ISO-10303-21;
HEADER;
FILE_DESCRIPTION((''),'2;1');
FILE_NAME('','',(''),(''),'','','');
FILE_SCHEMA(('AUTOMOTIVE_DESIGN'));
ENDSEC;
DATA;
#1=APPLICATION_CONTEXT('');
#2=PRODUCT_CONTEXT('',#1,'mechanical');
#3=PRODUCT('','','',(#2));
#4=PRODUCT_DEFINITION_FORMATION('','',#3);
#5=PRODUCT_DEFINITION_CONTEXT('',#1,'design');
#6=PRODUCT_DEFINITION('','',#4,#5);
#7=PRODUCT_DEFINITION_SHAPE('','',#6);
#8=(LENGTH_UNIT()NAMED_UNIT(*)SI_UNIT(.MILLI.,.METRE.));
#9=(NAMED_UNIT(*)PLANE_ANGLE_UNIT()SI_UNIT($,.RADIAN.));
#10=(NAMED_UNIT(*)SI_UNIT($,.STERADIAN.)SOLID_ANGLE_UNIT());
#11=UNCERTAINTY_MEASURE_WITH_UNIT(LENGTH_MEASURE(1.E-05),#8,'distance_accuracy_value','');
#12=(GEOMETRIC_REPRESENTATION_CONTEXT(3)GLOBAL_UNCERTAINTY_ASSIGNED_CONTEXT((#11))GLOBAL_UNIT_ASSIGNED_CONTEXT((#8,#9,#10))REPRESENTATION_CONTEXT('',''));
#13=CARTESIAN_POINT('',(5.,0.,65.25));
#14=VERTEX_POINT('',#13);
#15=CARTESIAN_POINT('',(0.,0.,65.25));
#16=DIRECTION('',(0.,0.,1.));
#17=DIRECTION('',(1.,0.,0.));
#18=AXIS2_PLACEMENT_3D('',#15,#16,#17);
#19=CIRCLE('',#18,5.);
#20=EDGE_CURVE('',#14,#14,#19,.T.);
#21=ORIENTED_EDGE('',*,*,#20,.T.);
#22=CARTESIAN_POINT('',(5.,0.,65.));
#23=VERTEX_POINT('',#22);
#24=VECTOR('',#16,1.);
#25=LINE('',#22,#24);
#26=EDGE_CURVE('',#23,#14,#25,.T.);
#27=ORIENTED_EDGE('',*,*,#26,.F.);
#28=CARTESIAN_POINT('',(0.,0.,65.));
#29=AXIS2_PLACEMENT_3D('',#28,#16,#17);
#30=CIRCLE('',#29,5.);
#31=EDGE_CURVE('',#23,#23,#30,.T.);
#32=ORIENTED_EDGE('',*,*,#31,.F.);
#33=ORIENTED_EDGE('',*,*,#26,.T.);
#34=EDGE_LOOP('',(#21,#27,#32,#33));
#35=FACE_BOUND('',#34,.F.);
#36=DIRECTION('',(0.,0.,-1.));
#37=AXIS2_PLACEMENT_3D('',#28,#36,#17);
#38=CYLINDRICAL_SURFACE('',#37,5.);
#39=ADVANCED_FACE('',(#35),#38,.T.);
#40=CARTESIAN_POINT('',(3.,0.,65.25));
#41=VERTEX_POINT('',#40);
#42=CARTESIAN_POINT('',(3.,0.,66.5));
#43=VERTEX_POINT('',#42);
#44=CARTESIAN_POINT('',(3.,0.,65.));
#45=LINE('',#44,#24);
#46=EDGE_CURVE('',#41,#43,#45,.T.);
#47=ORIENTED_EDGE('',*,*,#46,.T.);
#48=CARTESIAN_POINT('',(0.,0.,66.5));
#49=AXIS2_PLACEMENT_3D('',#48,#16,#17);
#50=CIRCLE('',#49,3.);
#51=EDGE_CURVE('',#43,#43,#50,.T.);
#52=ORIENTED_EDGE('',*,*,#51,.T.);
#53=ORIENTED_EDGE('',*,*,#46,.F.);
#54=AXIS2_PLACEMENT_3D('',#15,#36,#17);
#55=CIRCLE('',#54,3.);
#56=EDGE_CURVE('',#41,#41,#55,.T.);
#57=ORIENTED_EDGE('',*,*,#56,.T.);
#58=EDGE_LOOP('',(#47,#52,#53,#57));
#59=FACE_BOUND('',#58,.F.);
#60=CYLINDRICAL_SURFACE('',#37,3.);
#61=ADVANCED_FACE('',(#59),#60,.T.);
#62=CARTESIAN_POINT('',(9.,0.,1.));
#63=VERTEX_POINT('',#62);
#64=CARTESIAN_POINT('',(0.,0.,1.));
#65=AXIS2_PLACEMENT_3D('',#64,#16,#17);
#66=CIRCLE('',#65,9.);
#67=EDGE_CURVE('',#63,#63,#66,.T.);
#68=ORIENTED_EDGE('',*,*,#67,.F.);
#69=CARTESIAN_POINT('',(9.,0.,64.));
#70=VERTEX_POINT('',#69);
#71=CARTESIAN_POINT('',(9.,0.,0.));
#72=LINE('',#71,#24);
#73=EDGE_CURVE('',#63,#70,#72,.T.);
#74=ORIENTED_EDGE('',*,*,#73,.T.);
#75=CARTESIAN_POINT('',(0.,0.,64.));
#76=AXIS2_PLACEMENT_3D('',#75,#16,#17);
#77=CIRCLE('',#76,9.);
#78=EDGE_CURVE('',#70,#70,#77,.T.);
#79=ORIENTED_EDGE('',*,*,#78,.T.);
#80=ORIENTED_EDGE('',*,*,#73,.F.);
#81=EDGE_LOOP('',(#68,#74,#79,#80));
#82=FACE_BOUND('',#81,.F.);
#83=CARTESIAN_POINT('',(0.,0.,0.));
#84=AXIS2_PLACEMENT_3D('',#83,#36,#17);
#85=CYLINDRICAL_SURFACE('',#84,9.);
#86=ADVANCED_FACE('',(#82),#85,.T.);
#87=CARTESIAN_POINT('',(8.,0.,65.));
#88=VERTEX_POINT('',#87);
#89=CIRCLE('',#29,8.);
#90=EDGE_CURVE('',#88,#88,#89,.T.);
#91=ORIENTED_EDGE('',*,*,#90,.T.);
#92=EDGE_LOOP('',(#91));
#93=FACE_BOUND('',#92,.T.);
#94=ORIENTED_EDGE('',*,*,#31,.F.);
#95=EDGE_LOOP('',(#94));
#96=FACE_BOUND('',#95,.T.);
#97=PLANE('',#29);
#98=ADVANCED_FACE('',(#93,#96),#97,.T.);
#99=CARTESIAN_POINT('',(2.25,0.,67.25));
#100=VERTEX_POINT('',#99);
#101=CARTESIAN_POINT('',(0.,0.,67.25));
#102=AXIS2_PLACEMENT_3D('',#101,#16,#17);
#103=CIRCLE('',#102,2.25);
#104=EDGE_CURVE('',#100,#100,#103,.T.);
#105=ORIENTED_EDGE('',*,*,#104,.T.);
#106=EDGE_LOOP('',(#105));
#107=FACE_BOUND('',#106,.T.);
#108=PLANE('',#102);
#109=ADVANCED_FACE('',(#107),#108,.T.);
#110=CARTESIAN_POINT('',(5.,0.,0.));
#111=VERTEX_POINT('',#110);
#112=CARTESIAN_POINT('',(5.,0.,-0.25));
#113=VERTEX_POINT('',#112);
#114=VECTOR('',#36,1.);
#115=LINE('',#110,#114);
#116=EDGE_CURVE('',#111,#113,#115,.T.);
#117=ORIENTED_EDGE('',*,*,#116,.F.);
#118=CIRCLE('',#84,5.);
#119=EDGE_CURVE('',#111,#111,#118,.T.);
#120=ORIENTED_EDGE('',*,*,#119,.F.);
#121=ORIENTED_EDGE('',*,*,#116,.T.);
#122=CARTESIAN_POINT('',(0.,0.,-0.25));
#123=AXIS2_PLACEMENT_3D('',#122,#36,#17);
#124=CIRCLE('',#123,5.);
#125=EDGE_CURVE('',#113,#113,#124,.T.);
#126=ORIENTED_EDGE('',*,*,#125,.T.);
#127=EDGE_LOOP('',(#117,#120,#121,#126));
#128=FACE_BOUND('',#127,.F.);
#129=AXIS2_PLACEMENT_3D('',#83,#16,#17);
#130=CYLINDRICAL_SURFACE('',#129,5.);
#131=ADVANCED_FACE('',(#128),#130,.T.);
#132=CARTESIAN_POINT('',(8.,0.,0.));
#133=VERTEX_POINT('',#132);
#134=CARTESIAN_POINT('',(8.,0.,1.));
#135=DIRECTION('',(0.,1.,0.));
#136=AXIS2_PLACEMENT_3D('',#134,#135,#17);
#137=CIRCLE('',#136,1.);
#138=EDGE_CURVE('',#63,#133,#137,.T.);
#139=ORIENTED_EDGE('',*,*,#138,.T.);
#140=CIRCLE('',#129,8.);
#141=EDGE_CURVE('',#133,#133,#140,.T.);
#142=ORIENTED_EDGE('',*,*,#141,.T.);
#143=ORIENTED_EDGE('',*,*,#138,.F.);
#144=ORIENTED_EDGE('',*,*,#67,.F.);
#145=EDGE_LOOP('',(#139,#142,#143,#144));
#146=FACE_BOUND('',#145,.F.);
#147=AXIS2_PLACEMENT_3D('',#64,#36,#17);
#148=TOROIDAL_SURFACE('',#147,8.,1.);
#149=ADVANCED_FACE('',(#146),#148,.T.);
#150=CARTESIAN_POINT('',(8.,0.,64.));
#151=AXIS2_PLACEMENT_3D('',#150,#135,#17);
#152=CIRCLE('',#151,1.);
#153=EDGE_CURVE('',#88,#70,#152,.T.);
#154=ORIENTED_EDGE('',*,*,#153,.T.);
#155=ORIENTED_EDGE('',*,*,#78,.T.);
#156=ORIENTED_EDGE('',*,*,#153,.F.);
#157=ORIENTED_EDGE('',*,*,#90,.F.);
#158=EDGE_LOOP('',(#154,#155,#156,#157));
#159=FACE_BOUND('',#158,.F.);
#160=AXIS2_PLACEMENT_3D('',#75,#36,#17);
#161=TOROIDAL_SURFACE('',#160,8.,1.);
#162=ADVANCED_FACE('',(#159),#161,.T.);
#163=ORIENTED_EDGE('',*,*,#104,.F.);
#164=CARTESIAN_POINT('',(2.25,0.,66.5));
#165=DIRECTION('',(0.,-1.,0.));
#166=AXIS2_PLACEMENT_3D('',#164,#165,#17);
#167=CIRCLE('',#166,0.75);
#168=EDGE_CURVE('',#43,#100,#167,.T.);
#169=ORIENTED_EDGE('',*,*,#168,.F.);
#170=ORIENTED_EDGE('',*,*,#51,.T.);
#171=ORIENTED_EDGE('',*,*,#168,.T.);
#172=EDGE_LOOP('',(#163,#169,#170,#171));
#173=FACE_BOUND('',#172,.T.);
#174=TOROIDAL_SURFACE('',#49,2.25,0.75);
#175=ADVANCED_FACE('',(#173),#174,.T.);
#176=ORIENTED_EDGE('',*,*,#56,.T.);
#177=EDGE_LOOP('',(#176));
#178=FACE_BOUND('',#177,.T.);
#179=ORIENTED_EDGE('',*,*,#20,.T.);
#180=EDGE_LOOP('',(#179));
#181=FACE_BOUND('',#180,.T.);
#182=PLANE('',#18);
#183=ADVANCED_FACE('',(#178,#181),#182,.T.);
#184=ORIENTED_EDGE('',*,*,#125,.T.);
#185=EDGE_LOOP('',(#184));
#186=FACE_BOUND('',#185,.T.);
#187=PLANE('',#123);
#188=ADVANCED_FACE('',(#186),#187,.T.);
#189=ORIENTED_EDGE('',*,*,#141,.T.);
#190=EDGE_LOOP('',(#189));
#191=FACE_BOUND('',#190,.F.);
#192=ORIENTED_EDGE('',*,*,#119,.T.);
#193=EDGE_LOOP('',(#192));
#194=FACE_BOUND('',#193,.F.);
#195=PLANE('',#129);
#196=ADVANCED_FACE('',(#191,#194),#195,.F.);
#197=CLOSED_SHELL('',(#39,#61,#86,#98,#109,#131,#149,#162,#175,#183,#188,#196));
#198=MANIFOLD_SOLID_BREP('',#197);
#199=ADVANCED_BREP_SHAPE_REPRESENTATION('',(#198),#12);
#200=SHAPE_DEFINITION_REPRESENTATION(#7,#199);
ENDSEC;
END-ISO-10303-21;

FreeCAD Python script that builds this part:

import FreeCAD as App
import Part
import Sketcher

V = App.Vector
Q = App.Units.Quantity


def edges_at(feature, points):
    """Names of the edges that pass closest to the given points."""
    edges = feature.Shape.Edges
    near = lambda p: min(range(len(edges)), key=lambda i: edges[i].distToShape(Part.Vertex(*p))[0])
    return sorted({f"Edge{near(p) + 1}" for p in points})

doc = App.newDocument("Part")
body = doc.addObject("PartDesign::Body", "Body")

sketch1 = body.newObject("Sketcher::SketchObject", "Sketch")
sketch1.AttachmentSupport = (doc.getObject("XY_Plane"), [""])
sketch1.MapMode = "FlatFace"
sketch1.addGeometry(Part.Circle(V(0, 0, 0), V(0, 0, 1), 9), False)
sketch1.addConstraint([
    Sketcher.Constraint("Coincident", 0, 3, -1, 1),
    Sketcher.Constraint("Diameter", 0, Q("18 mm")),
])
pad1 = body.newObject("PartDesign::Pad", "Pad")
pad1.Profile = sketch1
pad1.Length = 65

sketch2 = body.newObject("Sketcher::SketchObject", "Sketch001")
sketch2.AttachmentSupport = (doc.getObject("XY_Plane"), [""])
sketch2.MapMode = "FlatFace"
sketch2.AttachmentOffset = App.Placement(V(0, 0, 65), App.Rotation())
sketch2.addGeometry(Part.Circle(V(0, 0, 0), V(0, 0, 1), 3), False)
sketch2.addConstraint([
    Sketcher.Constraint("Coincident", 0, 3, -1, 1),
    Sketcher.Constraint("Diameter", 0, Q("6 mm")),
])
pad2 = body.newObject("PartDesign::Pad", "Pad001")
pad2.Profile = sketch2
pad2.Length = 2.25
doc.recompute()

fillet = body.newObject("PartDesign::Fillet", "Fillet")
fillet.Base = (pad2, edges_at(pad2, [(-3, 0, 67.25)]))
fillet.Radius = 0.75
doc.recompute()

fillet2 = body.newObject("PartDesign::Fillet", "Fillet001")
fillet2.Base = (fillet, edges_at(fillet, [(-9, 0, 0), (-9, 0, 65)]))
fillet2.Radius = 1

sketch3 = body.newObject("Sketcher::SketchObject", "Sketch002")
sketch3.AttachmentSupport = (doc.getObject("XY_Plane"), [""])
sketch3.MapMode = "FlatFace"
sketch3.AttachmentOffset = App.Placement(V(0, 0, 65), App.Rotation())
sketch3.addGeometry(Part.Circle(V(0, 0, 0), V(0, 0, 1), 5), False)
sketch3.addConstraint([
    Sketcher.Constraint("Coincident", 0, 3, -1, 1),
    Sketcher.Constraint("Diameter", 0, Q("10 mm")),
])
pad3 = body.newObject("PartDesign::Pad", "Pad002")
pad3.Profile = sketch3
pad3.Length = 0.25

sketch4 = body.newObject("Sketcher::SketchObject", "Sketch003")
sketch4.AttachmentSupport = (doc.getObject("XY_Plane"), [""])
sketch4.MapMode = "FlatFace"
sketch4.addGeometry(Part.Circle(V(0, 0, 0), V(0, 0, 1), 5), False)
sketch4.addConstraint([
    Sketcher.Constraint("Coincident", 0, 3, -1, 1),
    Sketcher.Constraint("Diameter", 0, Q("10 mm")),
])
pad4 = body.newObject("PartDesign::Pad", "Pad003")
pad4.Profile = sketch4
pad4.Length = 0.25
pad4.Reversed = True

doc.recompute()
